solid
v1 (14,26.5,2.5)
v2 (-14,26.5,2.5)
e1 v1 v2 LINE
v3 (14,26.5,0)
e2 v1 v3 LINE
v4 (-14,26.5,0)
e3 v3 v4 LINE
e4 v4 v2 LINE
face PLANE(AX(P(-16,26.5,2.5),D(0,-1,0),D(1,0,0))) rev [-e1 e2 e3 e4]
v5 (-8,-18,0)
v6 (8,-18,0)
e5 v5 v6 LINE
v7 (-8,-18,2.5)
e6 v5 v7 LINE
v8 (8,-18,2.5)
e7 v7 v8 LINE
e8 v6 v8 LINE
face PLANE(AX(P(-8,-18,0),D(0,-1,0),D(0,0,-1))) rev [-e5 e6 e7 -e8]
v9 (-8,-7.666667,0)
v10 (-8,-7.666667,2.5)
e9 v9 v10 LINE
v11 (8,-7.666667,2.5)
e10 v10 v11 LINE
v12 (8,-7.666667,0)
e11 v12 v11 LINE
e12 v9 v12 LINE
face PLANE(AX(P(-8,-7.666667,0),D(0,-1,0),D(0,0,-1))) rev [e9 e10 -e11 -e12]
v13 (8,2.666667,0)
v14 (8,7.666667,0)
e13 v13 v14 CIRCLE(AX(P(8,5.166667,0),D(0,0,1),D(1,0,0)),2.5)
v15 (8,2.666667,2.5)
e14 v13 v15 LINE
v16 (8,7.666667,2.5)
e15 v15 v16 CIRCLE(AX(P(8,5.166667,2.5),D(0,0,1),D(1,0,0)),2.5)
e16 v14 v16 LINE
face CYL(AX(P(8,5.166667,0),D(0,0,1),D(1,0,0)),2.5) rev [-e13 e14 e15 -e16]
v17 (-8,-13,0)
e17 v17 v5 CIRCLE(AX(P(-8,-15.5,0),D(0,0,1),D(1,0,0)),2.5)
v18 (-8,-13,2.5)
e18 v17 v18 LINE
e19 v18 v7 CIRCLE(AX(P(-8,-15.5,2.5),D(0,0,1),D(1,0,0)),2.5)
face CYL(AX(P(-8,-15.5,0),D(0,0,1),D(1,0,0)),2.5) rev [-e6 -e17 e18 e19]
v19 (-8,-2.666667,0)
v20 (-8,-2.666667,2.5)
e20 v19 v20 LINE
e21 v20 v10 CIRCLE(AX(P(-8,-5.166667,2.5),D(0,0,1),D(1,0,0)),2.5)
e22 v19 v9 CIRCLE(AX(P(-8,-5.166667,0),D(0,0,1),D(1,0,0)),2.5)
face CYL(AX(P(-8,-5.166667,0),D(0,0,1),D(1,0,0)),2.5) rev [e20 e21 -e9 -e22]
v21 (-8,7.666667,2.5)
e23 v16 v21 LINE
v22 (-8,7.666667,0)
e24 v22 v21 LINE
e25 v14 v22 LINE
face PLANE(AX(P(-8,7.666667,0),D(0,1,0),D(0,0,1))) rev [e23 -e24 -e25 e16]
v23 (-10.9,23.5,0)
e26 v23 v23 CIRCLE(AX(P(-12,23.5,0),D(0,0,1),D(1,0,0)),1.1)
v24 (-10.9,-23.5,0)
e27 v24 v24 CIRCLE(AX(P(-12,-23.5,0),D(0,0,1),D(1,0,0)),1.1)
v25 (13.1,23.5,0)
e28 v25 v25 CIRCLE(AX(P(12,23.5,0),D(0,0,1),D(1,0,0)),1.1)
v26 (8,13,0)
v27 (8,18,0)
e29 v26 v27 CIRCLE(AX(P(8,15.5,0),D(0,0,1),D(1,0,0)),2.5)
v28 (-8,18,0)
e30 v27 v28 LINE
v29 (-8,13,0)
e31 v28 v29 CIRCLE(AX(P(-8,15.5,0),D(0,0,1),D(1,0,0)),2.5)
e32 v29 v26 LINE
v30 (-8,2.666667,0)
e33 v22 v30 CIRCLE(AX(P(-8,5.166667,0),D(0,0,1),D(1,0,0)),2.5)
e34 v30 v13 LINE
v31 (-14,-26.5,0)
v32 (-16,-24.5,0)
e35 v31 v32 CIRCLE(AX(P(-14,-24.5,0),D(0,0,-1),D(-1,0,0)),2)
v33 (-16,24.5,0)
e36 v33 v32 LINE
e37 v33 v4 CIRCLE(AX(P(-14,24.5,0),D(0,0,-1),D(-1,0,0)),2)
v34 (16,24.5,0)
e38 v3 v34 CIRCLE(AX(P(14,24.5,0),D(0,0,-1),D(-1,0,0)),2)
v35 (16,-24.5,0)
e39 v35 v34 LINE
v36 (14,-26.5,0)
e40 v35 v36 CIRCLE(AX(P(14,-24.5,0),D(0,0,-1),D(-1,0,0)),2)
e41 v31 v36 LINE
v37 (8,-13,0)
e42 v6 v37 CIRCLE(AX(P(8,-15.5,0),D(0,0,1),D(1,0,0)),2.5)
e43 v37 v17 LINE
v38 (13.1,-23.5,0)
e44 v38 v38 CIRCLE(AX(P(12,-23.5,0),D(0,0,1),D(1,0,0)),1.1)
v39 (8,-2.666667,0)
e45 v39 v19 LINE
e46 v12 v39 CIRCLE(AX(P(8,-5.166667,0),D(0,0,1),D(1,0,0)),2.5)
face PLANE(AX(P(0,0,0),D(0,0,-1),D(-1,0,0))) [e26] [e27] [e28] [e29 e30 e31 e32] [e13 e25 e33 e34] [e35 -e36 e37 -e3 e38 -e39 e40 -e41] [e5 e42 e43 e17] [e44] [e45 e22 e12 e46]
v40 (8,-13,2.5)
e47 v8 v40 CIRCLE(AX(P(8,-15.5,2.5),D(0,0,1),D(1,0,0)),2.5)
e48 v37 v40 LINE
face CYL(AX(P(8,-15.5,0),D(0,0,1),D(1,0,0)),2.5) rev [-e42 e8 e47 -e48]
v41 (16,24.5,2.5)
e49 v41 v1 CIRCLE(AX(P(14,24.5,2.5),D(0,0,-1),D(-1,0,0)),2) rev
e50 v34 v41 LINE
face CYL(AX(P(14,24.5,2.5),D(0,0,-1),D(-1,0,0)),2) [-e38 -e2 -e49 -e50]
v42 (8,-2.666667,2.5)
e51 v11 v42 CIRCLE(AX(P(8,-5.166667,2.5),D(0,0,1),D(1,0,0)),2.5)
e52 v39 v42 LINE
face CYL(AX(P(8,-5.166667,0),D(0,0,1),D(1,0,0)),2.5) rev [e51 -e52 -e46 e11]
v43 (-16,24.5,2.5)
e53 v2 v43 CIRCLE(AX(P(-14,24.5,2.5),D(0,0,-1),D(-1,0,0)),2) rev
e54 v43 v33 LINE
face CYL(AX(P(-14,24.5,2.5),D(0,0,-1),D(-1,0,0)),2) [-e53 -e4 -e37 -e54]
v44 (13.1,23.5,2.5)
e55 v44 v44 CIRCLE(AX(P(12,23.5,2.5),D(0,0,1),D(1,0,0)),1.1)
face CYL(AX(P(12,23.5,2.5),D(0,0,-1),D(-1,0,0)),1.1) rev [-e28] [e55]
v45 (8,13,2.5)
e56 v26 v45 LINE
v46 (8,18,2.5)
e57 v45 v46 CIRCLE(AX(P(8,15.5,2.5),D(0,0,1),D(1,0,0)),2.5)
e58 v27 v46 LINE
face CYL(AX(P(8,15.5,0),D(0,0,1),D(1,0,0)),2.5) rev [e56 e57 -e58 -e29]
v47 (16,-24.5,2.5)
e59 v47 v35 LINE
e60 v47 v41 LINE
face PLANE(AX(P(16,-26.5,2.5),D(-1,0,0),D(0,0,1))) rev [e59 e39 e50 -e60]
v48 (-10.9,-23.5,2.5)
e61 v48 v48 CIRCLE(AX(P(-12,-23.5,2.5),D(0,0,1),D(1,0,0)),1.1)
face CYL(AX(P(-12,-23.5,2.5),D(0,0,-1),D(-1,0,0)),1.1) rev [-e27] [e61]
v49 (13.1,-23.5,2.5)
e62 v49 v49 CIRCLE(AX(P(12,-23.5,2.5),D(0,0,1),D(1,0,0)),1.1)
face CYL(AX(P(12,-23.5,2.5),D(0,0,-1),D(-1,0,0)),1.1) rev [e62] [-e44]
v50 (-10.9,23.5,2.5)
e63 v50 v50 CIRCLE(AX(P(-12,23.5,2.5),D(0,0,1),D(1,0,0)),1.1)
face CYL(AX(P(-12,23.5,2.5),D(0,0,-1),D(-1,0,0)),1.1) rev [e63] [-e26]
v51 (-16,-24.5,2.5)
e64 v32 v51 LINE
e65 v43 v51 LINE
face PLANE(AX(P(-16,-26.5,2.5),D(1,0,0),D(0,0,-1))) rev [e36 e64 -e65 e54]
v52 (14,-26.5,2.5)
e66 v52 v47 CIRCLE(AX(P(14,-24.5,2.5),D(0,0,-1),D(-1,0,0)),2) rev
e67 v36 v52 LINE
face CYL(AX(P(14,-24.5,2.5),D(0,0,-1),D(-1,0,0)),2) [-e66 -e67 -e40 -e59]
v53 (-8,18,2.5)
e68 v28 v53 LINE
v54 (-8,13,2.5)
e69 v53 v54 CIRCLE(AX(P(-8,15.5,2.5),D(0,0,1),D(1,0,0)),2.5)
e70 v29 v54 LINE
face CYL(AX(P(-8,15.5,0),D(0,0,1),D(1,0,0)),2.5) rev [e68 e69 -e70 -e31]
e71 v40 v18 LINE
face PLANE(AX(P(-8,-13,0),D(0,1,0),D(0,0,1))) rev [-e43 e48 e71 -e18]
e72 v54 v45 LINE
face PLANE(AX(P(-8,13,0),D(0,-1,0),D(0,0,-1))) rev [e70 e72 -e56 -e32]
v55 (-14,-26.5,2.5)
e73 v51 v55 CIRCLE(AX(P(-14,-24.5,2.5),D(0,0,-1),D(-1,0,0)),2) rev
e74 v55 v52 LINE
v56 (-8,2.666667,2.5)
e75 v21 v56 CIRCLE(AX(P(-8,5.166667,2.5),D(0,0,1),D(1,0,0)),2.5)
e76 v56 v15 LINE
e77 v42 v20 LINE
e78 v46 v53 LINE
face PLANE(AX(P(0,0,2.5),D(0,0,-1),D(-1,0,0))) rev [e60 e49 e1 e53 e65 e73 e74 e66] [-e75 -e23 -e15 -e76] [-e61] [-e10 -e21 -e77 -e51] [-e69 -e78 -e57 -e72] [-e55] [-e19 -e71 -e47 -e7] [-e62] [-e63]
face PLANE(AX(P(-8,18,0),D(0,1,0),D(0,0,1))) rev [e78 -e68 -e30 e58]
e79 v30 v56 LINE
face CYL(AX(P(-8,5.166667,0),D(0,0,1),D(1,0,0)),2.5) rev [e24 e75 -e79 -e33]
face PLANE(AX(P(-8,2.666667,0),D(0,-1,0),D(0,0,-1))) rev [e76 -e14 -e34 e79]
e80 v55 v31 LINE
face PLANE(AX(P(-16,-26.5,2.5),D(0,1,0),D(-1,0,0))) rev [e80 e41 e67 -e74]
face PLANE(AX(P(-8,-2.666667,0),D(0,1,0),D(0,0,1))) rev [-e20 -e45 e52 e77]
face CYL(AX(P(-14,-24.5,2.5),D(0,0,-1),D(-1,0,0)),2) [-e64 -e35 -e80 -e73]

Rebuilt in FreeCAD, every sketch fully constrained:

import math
import FreeCAD as App
import Part
import Sketcher

V = App.Vector
Q = App.Units.Quantity


def edges_at(feature, points):
    """Names of the edges that pass closest to the given points."""
    edges = feature.Shape.Edges
    near = lambda p: min(range(len(edges)), key=lambda i: edges[i].distToShape(Part.Vertex(*p))[0])
    return sorted({f"Edge{near(p) + 1}" for p in points})


def add_polygon(sketch, points):
    """Adds a closed chain of lines whose ends are joined by coincident constraints."""
    first, n = sketch.GeometryCount, len(points)
    for a, b in zip(points, points[1:] + points[:1]):
        sketch.addGeometry(Part.LineSegment(App.Vector(*a, 0), App.Vector(*b, 0)), False)
    for i in range(n):
        sketch.addConstraint(Sketcher.Constraint("Coincident", first + i, 2, first + (i + 1) % n, 1))

doc = App.newDocument("Part")
body = doc.addObject("PartDesign::Body", "Body")

# Sketch on XY plane
sketch1 = doc.addObject("Sketcher::SketchObject", "Sketch")
body.addObject(sketch1)
sketch1.AttachmentSupport = (doc.XY_Plane, [""])
sketch1.MapMode = "FlatFace"
add_polygon(sketch1, [(-16, 26.5), (-16, -26.5), (16, -26.5), (16, 26.5)])  # lines 0-3
sketch1.addGeometry(Part.Circle(V(-12, -23.5, 0), V(0, 0, 1), 1.1), False)  # 4
sketch1.addGeometry(Part.Circle(V(12, -23.5, 0), V(0, 0, 1), 1.1), False)  # 5
sketch1.addGeometry(Part.Circle(V(-12, 23.5, 0), V(0, 0, 1), 1.1), False)  # 6
sketch1.addGeometry(Part.Circle(V(12, 23.5, 0), V(0, 0, 1), 1.1), False)  # 7
sketch1.addConstraint([
    Sketcher.Constraint("Vertical", 0),
    Sketcher.Constraint("Horizontal", 1),
    Sketcher.Constraint("Vertical", 2),
    Sketcher.Constraint("Horizontal", 3),
    Sketcher.Constraint("Equal", 4, 5),
    Sketcher.Constraint("Equal", 5, 6),
    Sketcher.Constraint("Equal", 6, 7),
    Sketcher.Constraint("Symmetric", 5, 3, 6, 3, -1, 1),
    Sketcher.Constraint("Symmetric", 4, 3, 7, 3, -1, 1),
    Sketcher.Constraint("Symmetric", 0, 2, 2, 2, -1, 1),
    Sketcher.Constraint("Symmetric", 4, 3, 5, 3, -2),
    Sketcher.Constraint("Diameter", 4, Q("2.2 mm")),
    Sketcher.Constraint("DistanceX", 1, 1, 1, 2, Q("32 mm")),
    Sketcher.Constraint("DistanceY", 0, 2, 0, 1, Q("53 mm")),
    Sketcher.Constraint("DistanceX", 4, 3, -1, 1, Q("12 mm")),
    Sketcher.Constraint("DistanceY", 4, 3, 6, 3, Q("47 mm")),
])
pad1 = doc.addObject("PartDesign::Pad", "Pad")
body.addObject(pad1)
pad1.Profile = sketch1
pad1.Length = 2.5

# Sketch on XY plane
sketch2 = doc.addObject("Sketcher::SketchObject", "Sketch001")
body.addObject(sketch2)
sketch2.AttachmentSupport = (doc.XY_Plane, [""])
sketch2.MapMode = "FlatFace"
sketch2.AttachmentOffset = App.Placement(V(0, 0, 2.5), App.Rotation())
sketch2.addGeometry([
    Part.LineSegment(V(8, 18, 0), V(-8, 18, 0)),  # 0
    Part.ArcOfCircle(Part.Circle(V(-8, 15.5, 0), V(0, 0, 1), 2.5), math.radians(90), math.radians(270)),  # 1
    Part.LineSegment(V(-8, 13, 0), V(8, 13, 0)),  # 2
    Part.ArcOfCircle(Part.Circle(V(8, 15.5, 0), V(0, 0, 1), 2.5), math.radians(-90), math.radians(90)),  # 3
    Part.LineSegment(V(-8, 2.666667, 0), V(8, 2.666667, 0)),  # 4
    Part.ArcOfCircle(Part.Circle(V(8, 5.166667, 0), V(0, 0, 1), 2.5), math.radians(-90), math.radians(90)),  # 5
    Part.LineSegment(V(8, 7.666667, 0), V(-8, 7.666667, 0)),  # 6
    Part.ArcOfCircle(Part.Circle(V(-8, 5.166667, 0), V(0, 0, 1), 2.5), math.radians(90), math.radians(270)),  # 7
    Part.LineSegment(V(-8, -7.666667, 0), V(8, -7.666667, 0)),  # 8
    Part.ArcOfCircle(Part.Circle(V(8, -5.166667, 0), V(0, 0, 1), 2.5), math.radians(-90), math.radians(90)),  # 9
    Part.LineSegment(V(8, -2.666667, 0), V(-8, -2.666667, 0)),  # 10
    Part.ArcOfCircle(Part.Circle(V(-8, -5.166667, 0), V(0, 0, 1), 2.5), math.radians(90), math.radians(270)),  # 11
    Part.LineSegment(V(-8, -18, 0), V(8, -18, 0)),  # 12
    Part.ArcOfCircle(Part.Circle(V(8, -15.5, 0), V(0, 0, 1), 2.5), math.radians(-90), math.radians(90)),  # 13
    Part.LineSegment(V(8, -13, 0), V(-8, -13, 0)),  # 14
    Part.ArcOfCircle(Part.Circle(V(-8, -15.5, 0), V(0, 0, 1), 2.5), math.radians(90), math.radians(270)),  # 15
], False)
sketch2.addConstraint([
    Sketcher.Constraint("Tangent", 0, 2, 1, 1),
    Sketcher.Constraint("Tangent", 1, 2, 2, 1),
    Sketcher.Constraint("Tangent", 2, 2, 3, 1),
    Sketcher.Constraint("Tangent", 3, 2, 0, 1),
    Sketcher.Constraint("Tangent", 4, 2, 5, 1),
    Sketcher.Constraint("Tangent", 5, 2, 6, 1),
    Sketcher.Constraint("Tangent", 6, 2, 7, 1),
    Sketcher.Constraint("Tangent", 7, 2, 4, 1),
    Sketcher.Constraint("Tangent", 8, 2, 9, 1),
    Sketcher.Constraint("Tangent", 9, 2, 10, 1),
    Sketcher.Constraint("Tangent", 10, 2, 11, 1),
    Sketcher.Constraint("Tangent", 11, 2, 8, 1),
    Sketcher.Constraint("Tangent", 12, 2, 13, 1),
    Sketcher.Constraint("Tangent", 13, 2, 14, 1),
    Sketcher.Constraint("Tangent", 14, 2, 15, 1),
    Sketcher.Constraint("Tangent", 15, 2, 12, 1),
    Sketcher.Constraint("Horizontal", 0),
    Sketcher.Constraint("Horizontal", 2),
    Sketcher.Constraint("Horizontal", 4),
    Sketcher.Constraint("Horizontal", 6),
    Sketcher.Constraint("Horizontal", 8),
    Sketcher.Constraint("Horizontal", 10),
    Sketcher.Constraint("Horizontal", 12),
    Sketcher.Constraint("Horizontal", 14),
    Sketcher.Constraint("Equal", 3, 5),
    Sketcher.Constraint("Equal", 7, 9),
    Sketcher.Constraint("Equal", 11, 13),
    Sketcher.Constraint("Symmetric", 7, 3, 9, 3, -1, 1),
    Sketcher.Constraint("Symmetric", 1, 3, 13, 3, -1, 1),
    Sketcher.Constraint("Vertical", 3, 3, 5, 3),
    Sketcher.Constraint("Vertical", 1, 3, 7, 3),
    Sketcher.Constraint("Vertical", 5, 3, 9, 3),
    Sketcher.Constraint("Vertical", 7, 3, 11, 3),
    Sketcher.Constraint("Vertical", 11, 3, 15, 3),
    Sketcher.Constraint("Radius", 1, Q("2.5 mm")),
    Sketcher.Constraint("DistanceX", 0, 2, 0, 1, Q("16 mm")),
    Sketcher.Constraint("DistanceY", -1, 1, 0, 2, Q("18 mm")),
    Sketcher.Constraint("DistanceY", -1, 1, 5, 3, Q("5.166667 mm")),
])
pocket1 = doc.addObject("PartDesign::Pocket", "Pocket")
body.addObject(pocket1)
pocket1.Profile = sketch2
pocket1.Type = "ThroughAll"
doc.recompute()

fillet = doc.addObject("PartDesign::Fillet", "Fillet")
body.addObject(fillet)
fillet.Base = (pocket1, edges_at(pocket1, [
    (16, -26.5, 1.25),
    (-16, -26.5, 1.25),
    (-16, 26.5, 1.25),
    (16, 26.5, 1.25),
]))
fillet.Radius = 2

doc.recompute()
